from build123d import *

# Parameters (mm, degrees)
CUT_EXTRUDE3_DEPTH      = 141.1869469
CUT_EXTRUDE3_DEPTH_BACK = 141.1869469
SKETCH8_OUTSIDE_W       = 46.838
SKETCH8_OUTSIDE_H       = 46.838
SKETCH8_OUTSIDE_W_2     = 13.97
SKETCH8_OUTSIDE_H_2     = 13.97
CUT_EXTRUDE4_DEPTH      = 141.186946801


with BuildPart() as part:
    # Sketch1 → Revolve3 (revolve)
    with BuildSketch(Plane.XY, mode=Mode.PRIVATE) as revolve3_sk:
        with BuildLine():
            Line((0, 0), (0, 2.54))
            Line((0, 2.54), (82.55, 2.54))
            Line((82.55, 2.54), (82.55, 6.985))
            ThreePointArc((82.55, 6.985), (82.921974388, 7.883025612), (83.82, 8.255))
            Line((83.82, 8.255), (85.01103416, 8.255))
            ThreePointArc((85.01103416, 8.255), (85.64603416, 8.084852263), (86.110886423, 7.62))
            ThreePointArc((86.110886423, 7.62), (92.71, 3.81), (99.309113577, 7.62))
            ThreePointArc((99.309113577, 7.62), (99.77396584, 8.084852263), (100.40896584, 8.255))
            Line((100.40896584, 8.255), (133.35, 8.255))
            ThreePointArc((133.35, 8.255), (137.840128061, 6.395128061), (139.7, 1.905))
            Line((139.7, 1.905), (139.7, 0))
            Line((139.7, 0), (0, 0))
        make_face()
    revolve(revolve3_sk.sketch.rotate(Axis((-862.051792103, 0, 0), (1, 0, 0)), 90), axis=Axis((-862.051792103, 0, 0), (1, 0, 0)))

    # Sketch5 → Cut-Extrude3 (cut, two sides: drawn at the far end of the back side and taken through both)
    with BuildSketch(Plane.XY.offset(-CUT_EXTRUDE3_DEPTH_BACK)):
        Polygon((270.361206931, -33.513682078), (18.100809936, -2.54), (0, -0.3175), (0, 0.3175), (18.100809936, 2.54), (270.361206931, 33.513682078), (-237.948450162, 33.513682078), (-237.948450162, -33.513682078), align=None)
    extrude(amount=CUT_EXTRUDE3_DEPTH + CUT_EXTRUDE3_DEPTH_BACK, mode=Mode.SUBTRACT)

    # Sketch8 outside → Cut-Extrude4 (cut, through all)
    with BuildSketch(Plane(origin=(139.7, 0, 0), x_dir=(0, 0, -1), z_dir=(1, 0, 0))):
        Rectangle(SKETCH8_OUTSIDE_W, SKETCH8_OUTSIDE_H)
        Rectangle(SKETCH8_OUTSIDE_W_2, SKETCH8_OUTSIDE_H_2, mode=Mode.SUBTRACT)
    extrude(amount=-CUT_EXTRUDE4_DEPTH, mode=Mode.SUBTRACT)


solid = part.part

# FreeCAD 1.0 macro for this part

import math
import FreeCAD as App
import Part
import Sketcher

V = App.Vector
Q = App.Units.Quantity

doc = App.newDocument("Part")
body = doc.addObject("PartDesign::Body", "Body")

sketch1 = body.newObject("Sketcher::SketchObject", "Sketch")
sketch1.AttachmentSupport = (doc.getObject("XY_Plane"), [""])
sketch1.MapMode = "FlatFace"
sketch1.addGeometry([
    Part.LineSegment(V(0, 2.5, 0), V(0, 0, 0)),
    Part.LineSegment(V(0, 0, 0), V(139.7, 0, 0)),
    Part.LineSegment(V(139.7, 0, 0), V(139.7, 1.9, 0)),
    Part.ArcOfCircle(Part.Circle(V(133.4, 1.9, 0), V(0, 0, 1), 6.3), math.radians(0), math.radians(90)),
    Part.LineSegment(V(133.3, 8.3, 0), V(100.4, 8.3, 0)),
    Part.ArcOfCircle(Part.Circle(V(100.4, 7, 0), V(0, 0, 1), 1.3), math.radians(90), math.radians(150)),
    Part.ArcOfCircle(Part.Circle(V(92.7, 11.4, 0), V(0, 0, 1), 7.6), math.radians(-150), math.radians(-30)),
    Part.ArcOfCircle(Part.Circle(V(85, 7, 0), V(0, 0, 1), 1.3), math.radians(30), math.radians(90)),
    Part.LineSegment(V(85, 8.3, 0), V(83.8, 8.3, 0)),
    Part.ArcOfCircle(Part.Circle(V(83.8, 7, 0), V(0, 0, 1), 1.3), math.radians(90), math.radians(180)),
    Part.LineSegment(V(82.5, 7, 0), V(82.5, 2.5, 0)),
    Part.LineSegment(V(82.5, 2.5, 0), V(0, 2.5, 0)),
], False)
sketch1.addConstraint([
    Sketcher.Constraint("Coincident", 0, 2, 1, 1),
    Sketcher.Constraint("Coincident", 1, 2, 2, 1),
    Sketcher.Constraint("Tangent", 2, 2, 3, 1),
    Sketcher.Constraint("Tangent", 3, 2, 4, 1),
    Sketcher.Constraint("Tangent", 4, 2, 5, 1),
    Sketcher.Constraint("Tangent", 5, 2, 6, 2),
    Sketcher.Constraint("Tangent", 6, 1, 7, 1),
    Sketcher.Constraint("Tangent", 7, 2, 8, 1),
    Sketcher.Constraint("Tangent", 8, 2, 9, 1),
    Sketcher.Constraint("Tangent", 9, 2, 10, 1),
    Sketcher.Constraint("Coincident", 10, 2, 11, 1),
    Sketcher.Constraint("Coincident", 11, 2, 0, 1),
    Sketcher.Constraint("Vertical", 0),
    Sketcher.Constraint("Horizontal", 1),
    Sketcher.Constraint("Vertical", 2),
    Sketcher.Constraint("Horizontal", 4),
    Sketcher.Constraint("Horizontal", 8),
    Sketcher.Constraint("Vertical", 10),
    Sketcher.Constraint("Horizontal", 11),
    Sketcher.Constraint("Coincident", 0, 2, -1, 1),
    Sketcher.Constraint("Equal", 5, 7),
    Sketcher.Constraint("Equal", 7, 9),
    Sketcher.Constraint("Horizontal", 5, 3, 7, 3),
    Sketcher.Constraint("Radius", 6, Q("0.3 in")),
    Sketcher.Constraint("Radius", 3, Q("0.25 in")),
    Sketcher.Constraint("Radius", 5, Q("0.05 in")),
    Sketcher.Constraint("DistanceX", 1, 1, 1, 2, Q("5.5 in")),
    Sketcher.Constraint("DistanceY", 0, 2, 0, 1, Q("0.1 in")),
    Sketcher.Constraint("DistanceX", 11, 2, 11, 1, Q("3.25 in")),
    Sketcher.Constraint("DistanceY", -1, 1, 5, 2, Q("0.3 in")),
    Sketcher.Constraint("DistanceX", 6, 3, 3, 3, Q("1.6 in")),
    Sketcher.Constraint("DistanceY", 2, 1, 2, 2, Q("0.075 in")),
])
revolution = body.newObject("PartDesign::Revolution", "Revolution")
revolution.Profile = sketch1
revolution.ReferenceAxis = (sketch1, ["H_Axis"])
revolution.Angle = 360

sketch2 = body.newObject("Sketcher::SketchObject", "Sketch001")
sketch2.AttachmentSupport = (doc.getObject("XY_Plane"), [""])
sketch2.MapMode = "FlatFace"
sketch2.addGeometry([
    Part.LineSegment(V(270.4, -33.5, 0), V(18.1, -2.5, 0)),
    Part.LineSegment(V(18.1, -2.5, 0), V(0, -0.3, 0)),
    Part.LineSegment(V(0, -0.3, 0), V(0, 0.3, 0)),
    Part.LineSegment(V(0, 0.3, 0), V(18.1, 2.5, 0)),
    Part.LineSegment(V(18.1, 2.5, 0), V(270.4, 33.5, 0)),
    Part.LineSegment(V(270.4, 33.5, 0), V(-237.9, 33.5, 0)),
    Part.LineSegment(V(-237.9, 33.5, 0), V(-237.9, -33.5, 0)),
    Part.LineSegment(V(-237.9, -33.5, 0), V(270.4, -33.5, 0)),
], False)
sketch2.addConstraint([
    Sketcher.Constraint("Coincident", 0, 2, 1, 1),
    Sketcher.Constraint("Coincident", 1, 2, 2, 1),
    Sketcher.Constraint("Coincident", 2, 2, 3, 1),
    Sketcher.Constraint("Coincident", 3, 2, 4, 1),
    Sketcher.Constraint("Coincident", 4, 2, 5, 1),
    Sketcher.Constraint("Coincident", 5, 2, 6, 1),
    Sketcher.Constraint("Coincident", 6, 2, 7, 1),
    Sketcher.Constraint("Coincident", 7, 2, 0, 1),
    Sketcher.Constraint("Vertical", 2),
    Sketcher.Constraint("Horizontal", 5),
    Sketcher.Constraint("Vertical", 6),
    Sketcher.Constraint("Horizontal", 7),
    Sketcher.Constraint("Symmetric", 1, 2, 2, 2, -1, 1),
    Sketcher.Constraint("Symmetric", 0, 2, 3, 2, -1),
    Sketcher.Constraint("Symmetric", 4, 2, 7, 2, -1),
    Sketcher.Constraint("Parallel", 0, 1),
    Sketcher.Constraint("Angle", 0, Q("173 deg")),
    Sketcher.Constraint("DistanceY", 0, 2, -1, 1, Q("0.1 in")),
    Sketcher.Constraint("DistanceY", 2, 1, 2, 2, Q("0.025 in")),
    Sketcher.Constraint("Distance", 0, Q("254.154829 mm")),
    Sketcher.Constraint("DistanceX", 5, 2, 5, 1, Q("508.309657 mm")),
])
pocket1 = body.newObject("PartDesign::Pocket", "Pocket")
pocket1.Profile = sketch2
pocket1.Type = "ThroughAll"
pocket1.Midplane = True

sketch3 = body.newObject("Sketcher::SketchObject", "Sketch002")
sketch3.AttachmentSupport = (doc.getObject("YZ_Plane"), [""])
sketch3.MapMode = "FlatFace"
sketch3.AttachmentOffset = App.Placement(V(0, 0, 5.5 * 25.4), App.Rotation())
sketch3.addGeometry([
    Part.LineSegment(V(23, 23, 0), V(-23, 23, 0)),
    Part.LineSegment(V(-23, 23, 0), V(-23, -23, 0)),
    Part.LineSegment(V(-23, -23, 0), V(23, -23, 0)),
    Part.LineSegment(V(23, -23, 0), V(23, 23, 0)),
    Part.LineSegment(V(-7, -7, 0), V(-7, 7, 0)),
    Part.LineSegment(V(-7, 7, 0), V(7, 7, 0)),
    Part.LineSegment(V(7, 7, 0), V(7, -7, 0)),
    Part.LineSegment(V(7, -7, 0), V(-7, -7, 0)),
], False)
sketch3.addConstraint([
    Sketcher.Constraint("Coincident", 0, 2, 1, 1),
    Sketcher.Constraint("Coincident", 1, 2, 2, 1),
    Sketcher.Constraint("Coincident", 2, 2, 3, 1),
    Sketcher.Constraint("Coincident", 3, 2, 0, 1),
    Sketcher.Constraint("Coincident", 4, 2, 5, 1),
    Sketcher.Constraint("Coincident", 5, 2, 6, 1),
    Sketcher.Constraint("Coincident", 6, 2, 7, 1),
    Sketcher.Constraint("Coincident", 7, 2, 4, 1),
    Sketcher.Constraint("Horizontal", 0),
    Sketcher.Constraint("Vertical", 1),
    Sketcher.Constraint("Horizontal", 2),
    Sketcher.Constraint("Vertical", 3),
    Sketcher.Constraint("Vertical", 4),
    Sketcher.Constraint("Horizontal", 5),
    Sketcher.Constraint("Vertical", 6),
    Sketcher.Constraint("Horizontal", 7),
    Sketcher.Constraint("Symmetric", 0, 2, 2, 2, -1, 1),
    Sketcher.Constraint("Symmetric", 4, 2, 6, 2, -1, 1),
    Sketcher.Constraint("Equal", 2, 1),
    Sketcher.Constraint("Equal", 7, 4),
    Sketcher.Constraint("DistanceX", 5, 1, 5, 2, Q("0.55 in")),
    Sketcher.Constraint("DistanceX", 0, 2, 0, 1, Q("46.838 mm")),
])
pocket2 = body.newObject("PartDesign::Pocket", "Pocket001")
pocket2.Profile = sketch3
pocket2.Type = "ThroughAll"

doc.recompute()
